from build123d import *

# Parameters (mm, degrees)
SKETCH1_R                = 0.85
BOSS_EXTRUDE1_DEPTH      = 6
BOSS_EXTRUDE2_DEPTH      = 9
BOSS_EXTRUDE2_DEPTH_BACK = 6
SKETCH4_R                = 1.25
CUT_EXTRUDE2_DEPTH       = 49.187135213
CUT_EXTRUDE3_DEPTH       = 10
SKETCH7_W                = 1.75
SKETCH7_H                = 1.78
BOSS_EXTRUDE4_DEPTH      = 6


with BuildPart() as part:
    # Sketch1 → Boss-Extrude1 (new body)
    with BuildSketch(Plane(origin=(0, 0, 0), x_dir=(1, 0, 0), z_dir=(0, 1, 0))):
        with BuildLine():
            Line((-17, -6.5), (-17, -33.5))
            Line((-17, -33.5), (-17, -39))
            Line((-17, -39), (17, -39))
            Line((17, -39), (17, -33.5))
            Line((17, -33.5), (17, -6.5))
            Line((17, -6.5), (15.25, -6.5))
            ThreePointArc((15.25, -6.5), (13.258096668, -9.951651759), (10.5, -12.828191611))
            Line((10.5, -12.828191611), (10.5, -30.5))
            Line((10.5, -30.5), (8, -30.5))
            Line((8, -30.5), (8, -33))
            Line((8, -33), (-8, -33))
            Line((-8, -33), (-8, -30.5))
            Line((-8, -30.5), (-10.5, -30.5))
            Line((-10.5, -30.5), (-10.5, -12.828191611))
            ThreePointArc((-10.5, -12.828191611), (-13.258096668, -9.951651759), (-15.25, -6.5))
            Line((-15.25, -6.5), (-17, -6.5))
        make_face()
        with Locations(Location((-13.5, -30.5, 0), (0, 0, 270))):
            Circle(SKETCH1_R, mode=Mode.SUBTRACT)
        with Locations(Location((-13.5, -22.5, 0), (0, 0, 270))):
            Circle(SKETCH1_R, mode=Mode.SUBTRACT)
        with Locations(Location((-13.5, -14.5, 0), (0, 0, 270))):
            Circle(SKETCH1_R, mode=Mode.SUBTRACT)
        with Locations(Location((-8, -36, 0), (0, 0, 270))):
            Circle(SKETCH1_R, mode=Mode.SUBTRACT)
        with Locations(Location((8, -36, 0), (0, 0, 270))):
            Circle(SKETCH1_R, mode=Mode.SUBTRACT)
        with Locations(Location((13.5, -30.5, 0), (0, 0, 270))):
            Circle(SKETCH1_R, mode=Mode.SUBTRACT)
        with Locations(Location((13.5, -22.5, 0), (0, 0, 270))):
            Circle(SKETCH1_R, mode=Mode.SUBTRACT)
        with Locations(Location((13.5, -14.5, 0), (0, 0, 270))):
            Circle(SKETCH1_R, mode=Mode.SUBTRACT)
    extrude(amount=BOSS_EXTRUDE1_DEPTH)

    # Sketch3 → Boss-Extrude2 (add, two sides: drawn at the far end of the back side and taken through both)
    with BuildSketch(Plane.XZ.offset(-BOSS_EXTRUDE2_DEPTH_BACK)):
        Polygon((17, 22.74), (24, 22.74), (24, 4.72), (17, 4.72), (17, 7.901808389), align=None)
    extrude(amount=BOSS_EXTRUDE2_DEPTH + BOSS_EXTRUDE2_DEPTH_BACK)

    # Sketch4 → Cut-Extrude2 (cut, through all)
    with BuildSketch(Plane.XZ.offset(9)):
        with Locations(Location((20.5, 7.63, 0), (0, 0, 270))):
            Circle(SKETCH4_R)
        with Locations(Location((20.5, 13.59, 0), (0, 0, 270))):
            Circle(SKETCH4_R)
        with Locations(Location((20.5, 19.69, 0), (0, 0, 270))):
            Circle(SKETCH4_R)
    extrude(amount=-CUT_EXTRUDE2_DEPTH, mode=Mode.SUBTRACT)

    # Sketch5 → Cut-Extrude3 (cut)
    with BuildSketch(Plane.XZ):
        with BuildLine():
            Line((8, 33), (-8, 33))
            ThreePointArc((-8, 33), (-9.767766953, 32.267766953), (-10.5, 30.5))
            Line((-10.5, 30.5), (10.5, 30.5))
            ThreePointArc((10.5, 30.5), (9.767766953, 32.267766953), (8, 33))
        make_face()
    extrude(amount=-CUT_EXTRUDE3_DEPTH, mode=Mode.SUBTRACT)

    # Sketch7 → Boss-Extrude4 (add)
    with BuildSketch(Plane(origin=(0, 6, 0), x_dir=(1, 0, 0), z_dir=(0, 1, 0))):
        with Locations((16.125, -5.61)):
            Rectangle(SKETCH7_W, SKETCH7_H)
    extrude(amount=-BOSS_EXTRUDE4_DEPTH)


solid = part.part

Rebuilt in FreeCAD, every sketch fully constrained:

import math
import FreeCAD as App
import Part
import Sketcher

V = App.Vector


def add_polygon(sketch, points):
    """Adds a closed chain of lines whose ends are joined by coincident constraints."""
    first, n = sketch.GeometryCount, len(points)
    for a, b in zip(points, points[1:] + points[:1]):
        sketch.addGeometry(Part.LineSegment(App.Vector(*a, 0), App.Vector(*b, 0)), False)
    for i in range(n):
        sketch.addConstraint(Sketcher.Constraint("Coincident", first + i, 2, first + (i + 1) % n, 1))

doc = App.newDocument("Part")
body = doc.addObject("PartDesign::Body", "Body")

sketch1 = body.newObject("Sketcher::SketchObject", "Sketch")
sketch1.AttachmentSupport = (doc.getObject("XZ_Plane"), [""])
sketch1.MapMode = "FlatFace"
sketch1.addGeometry(Part.LineSegment(V(-17, 6.5, 0), V(-17, 39, 0)), False)
sketch1.addGeometry(Part.LineSegment(V(-17, 39, 0), V(17, 39, 0)), False)
sketch1.addGeometry(Part.LineSegment(V(17, 39, 0), V(17, 6.5, 0)), False)
sketch1.addGeometry(Part.LineSegment(V(17, 6.5, 0), V(15.2, 6.5, 0)), False)
sketch1.addGeometry(Part.ArcOfCircle(Part.Circle(V(0, 0, 0), V(0, 0, 1), 16.6), math.radians(23), math.radians(51)), False)
sketch1.addGeometry(Part.LineSegment(V(10.5, 12.8, 0), V(10.5, 30.5, 0)), False)
sketch1.addGeometry(Part.LineSegment(V(10.5, 30.5, 0), V(8, 30.5, 0)), False)
sketch1.addGeometry(Part.LineSegment(V(8, 30.5, 0), V(8, 33, 0)), False)
sketch1.addGeometry(Part.LineSegment(V(8, 33, 0), V(-8, 33, 0)), False)
sketch1.addGeometry(Part.LineSegment(V(-8, 33, 0), V(-8, 30.5, 0)), False)
sketch1.addGeometry(Part.LineSegment(V(-8, 30.5, 0), V(-10.5, 30.5, 0)), False)
sketch1.addGeometry(Part.LineSegment(V(-10.5, 30.5, 0), V(-10.5, 12.8, 0)), False)
sketch1.addGeometry(Part.ArcOfCircle(Part.Circle(V(0, 0, 0), V(0, 0, 1), 16.6), math.radians(129), math.radians(157)), False)
sketch1.addGeometry(Part.LineSegment(V(-15.2, 6.5, 0), V(-17, 6.5, 0)), False)
sketch1.addGeometry(Part.Circle(V(-8, 36, 0), V(0, 0, 1), 0.8), False)
sketch1.addGeometry(Part.Circle(V(-13.5, 30.5, 0), V(0, 0, 1), 0.8), False)
sketch1.addGeometry(Part.Circle(V(8, 36, 0), V(0, 0, 1), 0.8), False)
sketch1.addGeometry(Part.Circle(V(13.5, 30.5, 0), V(0, 0, 1), 0.8), False)
sketch1.addGeometry(Part.Circle(V(-13.5, 22.5, 0), V(0, 0, 1), 0.8), False)
sketch1.addGeometry(Part.Circle(V(-13.5, 14.5, 0), V(0, 0, 1), 0.8), False)
sketch1.addGeometry(Part.Circle(V(13.5, 22.5, 0), V(0, 0, 1), 0.8), False)
sketch1.addGeometry(Part.Circle(V(13.5, 14.5, 0), V(0, 0, 1), 0.8), False)
sketch1.addConstraint(Sketcher.Constraint("Coincident", 0, 2, 1, 1))
sketch1.addConstraint(Sketcher.Constraint("Coincident", 1, 2, 2, 1))
sketch1.addConstraint(Sketcher.Constraint("Coincident", 2, 2, 3, 1))
sketch1.addConstraint(Sketcher.Constraint("Coincident", 3, 2, 4, 1))
sketch1.addConstraint(Sketcher.Constraint("Coincident", 4, 2, 5, 1))
sketch1.addConstraint(Sketcher.Constraint("Coincident", 5, 2, 6, 1))
sketch1.addConstraint(Sketcher.Constraint("Coincident", 6, 2, 7, 1))
sketch1.addConstraint(Sketcher.Constraint("Coincident", 7, 2, 8, 1))
sketch1.addConstraint(Sketcher.Constraint("Coincident", 8, 2, 9, 1))
sketch1.addConstraint(Sketcher.Constraint("Coincident", 9, 2, 10, 1))
sketch1.addConstraint(Sketcher.Constraint("Coincident", 10, 2, 11, 1))
sketch1.addConstraint(Sketcher.Constraint("Coincident", 11, 2, 12, 1))
sketch1.addConstraint(Sketcher.Constraint("Coincident", 12, 2, 13, 1))
sketch1.addConstraint(Sketcher.Constraint("Coincident", 13, 2, 0, 1))
sketch1.addConstraint(Sketcher.Constraint("Vertical", 0))
sketch1.addConstraint(Sketcher.Constraint("Horizontal", 1))
sketch1.addConstraint(Sketcher.Constraint("Vertical", 2))
sketch1.addConstraint(Sketcher.Constraint("Horizontal", 3))
sketch1.addConstraint(Sketcher.Constraint("Vertical", 5))
sketch1.addConstraint(Sketcher.Constraint("Horizontal", 6))
sketch1.addConstraint(Sketcher.Constraint("Vertical", 7))
sketch1.addConstraint(Sketcher.Constraint("Horizontal", 8))
sketch1.addConstraint(Sketcher.Constraint("Vertical", 9))
sketch1.addConstraint(Sketcher.Constraint("Horizontal", 10))
sketch1.addConstraint(Sketcher.Constraint("Vertical", 11))
sketch1.addConstraint(Sketcher.Constraint("Horizontal", 13))
sketch1.addConstraint(Sketcher.Constraint("Coincident", 4, 3, -1, 1))
sketch1.addConstraint(Sketcher.Constraint("Coincident", 12, 3, -1, 1))
sketch1.addConstraint(Sketcher.Constraint("Equal", 4, 12))
sketch1.addConstraint(Sketcher.Constraint("Equal", 14, 15))
sketch1.addConstraint(Sketcher.Constraint("Equal", 15, 16))
sketch1.addConstraint(Sketcher.Constraint("Equal", 16, 17))
sketch1.addConstraint(Sketcher.Constraint("Equal", 17, 18))
sketch1.addConstraint(Sketcher.Constraint("Equal", 18, 19))
sketch1.addConstraint(Sketcher.Constraint("Equal", 19, 20))
sketch1.addConstraint(Sketcher.Constraint("Equal", 20, 21))
sketch1.addConstraint(Sketcher.Constraint("Symmetric", 14, 3, 16, 3, -2))
sketch1.addConstraint(Sketcher.Constraint("Symmetric", 15, 3, 17, 3, -2))
sketch1.addConstraint(Sketcher.Constraint("Symmetric", 18, 3, 20, 3, -2))
sketch1.addConstraint(Sketcher.Constraint("Symmetric", 19, 3, 21, 3, -2))
sketch1.addConstraint(Sketcher.Constraint("Symmetric", 6, 2, 9, 2, -2))
sketch1.addConstraint(Sketcher.Constraint("Symmetric", 2, 2, 13, 2, -2))
sketch1.addConstraint(Sketcher.Constraint("Horizontal", 17, 3, 5, 2))
sketch1.addConstraint(Sketcher.Constraint("Horizontal", 4, 2, 11, 2))
sketch1.addConstraint(Sketcher.Constraint("Vertical", 15, 3, 18, 3))
sketch1.addConstraint(Sketcher.Constraint("Vertical", 18, 3, 19, 3))
sketch1.addConstraint(Sketcher.Constraint("Vertical", 16, 3, 6, 2))
sketch1.addConstraint(Sketcher.Constraint("Equal", 10, 7))
sketch1.addConstraint(Sketcher.Constraint("Diameter", 14, 1.7))
sketch1.addConstraint(Sketcher.Constraint("DistanceX", 1, 1, 1, 2, 34.0))
sketch1.addConstraint(Sketcher.Constraint("DistanceX", 8, 2, 8, 1, 16.0))
sketch1.addConstraint(Sketcher.Constraint("DistanceX", 6, 2, 6, 1, 2.5))
sketch1.addConstraint(Sketcher.Constraint("DistanceY", 0, 1, 0, 2, 32.5))
sketch1.addConstraint(Sketcher.Constraint("DistanceY", -1, 1, 14, 3, 36.0))
sketch1.addConstraint(Sketcher.Constraint("DistanceY", -1, 1, 0, 2, 39.0))
sketch1.addConstraint(Sketcher.Constraint("DistanceY", -1, 1, 7, 2, 33.0))
sketch1.addConstraint(Sketcher.Constraint("DistanceX", 15, 3, 17, 3, 27.0))
sketch1.addConstraint(Sketcher.Constraint("DistanceY", 18, 3, 15, 3, 8.0))
sketch1.addConstraint(Sketcher.Constraint("DistanceY", 19, 3, 18, 3, 8.0))
sketch1.addConstraint(Sketcher.Constraint("DistanceX", 3, 2, 3, 1, 1.75))
pad1 = body.newObject("PartDesign::Pad", "Pad")
pad1.Profile = sketch1
pad1.Length = 6
pad1.Reversed = True

sketch2 = body.newObject("Sketcher::SketchObject", "Sketch001")
sketch2.AttachmentSupport = (doc.getObject("XZ_Plane"), [""])
sketch2.MapMode = "FlatFace"
add_polygon(sketch2, [(24, 23), (17, 23), (17, 5), (24, 5)])
sketch2.addConstraint(Sketcher.Constraint("Horizontal", 0))
sketch2.addConstraint(Sketcher.Constraint("Vertical", 1))
sketch2.addConstraint(Sketcher.Constraint("Horizontal", 2))
sketch2.addConstraint(Sketcher.Constraint("Vertical", 3))
sketch2.addConstraint(Sketcher.Constraint("DistanceX", 0, 2, 0, 1, 7.0))
sketch2.addConstraint(Sketcher.Constraint("DistanceX", -1, 1, 0, 2, 17.0))
sketch2.addConstraint(Sketcher.Constraint("DistanceY", 1, 2, 1, 1, 18.02))
sketch2.addConstraint(Sketcher.Constraint("DistanceY", -1, 1, 0, 2, 22.74))
pad2 = body.newObject("PartDesign::Pad", "Pad001")
pad2.Profile = sketch2
pad2.Type = "TwoLengths"
pad2.Length = 9
pad2.Length2 = 6

sketch3 = body.newObject("Sketcher::SketchObject", "Sketch002")
sketch3.AttachmentSupport = (doc.getObject("XZ_Plane"), [""])
sketch3.MapMode = "FlatFace"
sketch3.AttachmentOffset = App.Placement(V(0, 0, 9), App.Rotation())
sketch3.addGeometry(Part.Circle(V(20.5, 7.6, 0), V(0, 0, 1), 1.2), False)
sketch3.addGeometry(Part.Circle(V(20.5, 13.6, 0), V(0, 0, 1), 1.2), False)
sketch3.addGeometry(Part.Circle(V(20.5, 19.7, 0), V(0, 0, 1), 1.2), False)
sketch3.addConstraint(Sketcher.Constraint("Equal", 0, 1))
sketch3.addConstraint(Sketcher.Constraint("Equal", 1, 2))
sketch3.addConstraint(Sketcher.Constraint("Vertical", 0, 3, 1, 3))
sketch3.addConstraint(Sketcher.Constraint("Vertical", 1, 3, 2, 3))
sketch3.addConstraint(Sketcher.Constraint("Diameter", 0, 2.5))
sketch3.addConstraint(Sketcher.Constraint("DistanceX", -1, 1, 0, 3, 20.5))
sketch3.addConstraint(Sketcher.Constraint("DistanceY", 1, 3, 2, 3, 6.1))
sketch3.addConstraint(Sketcher.Constraint("DistanceY", -1, 1, 0, 3, 7.63))
sketch3.addConstraint(Sketcher.Constraint("DistanceY", -1, 1, 1, 3, 13.59))
pocket1 = body.newObject("PartDesign::Pocket", "Pocket")
pocket1.Profile = sketch3
pocket1.Type = "ThroughAll"

sketch4 = body.newObject("Sketcher::SketchObject", "Sketch003")
sketch4.AttachmentSupport = (doc.getObject("XZ_Plane"), [""])
sketch4.MapMode = "FlatFace"
sketch4.addGeometry(Part.LineSegment(V(8, 33, 0), V(-8, 33, 0)), False)
sketch4.addGeometry(Part.ArcOfCircle(Part.Circle(V(-8, 30.5, 0), V(0, 0, 1), 2.5), math.radians(90), math.radians(180)), False)
sketch4.addGeometry(Part.LineSegment(V(-10.5, 30.5, 0), V(10.5, 30.5, 0)), False)
sketch4.addGeometry(Part.ArcOfCircle(Part.Circle(V(8, 30.5, 0), V(0, 0, 1), 2.5), math.radians(0), math.radians(90)), False)
sketch4.addConstraint(Sketcher.Constraint("Tangent", 0, 2, 1, 1))
sketch4.addConstraint(Sketcher.Constraint("Coincident", 1, 2, 2, 1))
sketch4.addConstraint(Sketcher.Constraint("Coincident", 2, 2, 3, 1))
sketch4.addConstraint(Sketcher.Constraint("Tangent", 3, 2, 0, 1))
sketch4.addConstraint(Sketcher.Constraint("Horizontal", 0))
sketch4.addConstraint(Sketcher.Constraint("Horizontal", 2))
sketch4.addConstraint(Sketcher.Constraint("Equal", 1, 3))
sketch4.addConstraint(Sketcher.Constraint("Horizontal", 3, 3, 1, 2))
sketch4.addConstraint(Sketcher.Constraint("Radius", 1, 2.5))
sketch4.addConstraint(Sketcher.Constraint("DistanceX", 0, 2, 0, 1, 16.0))
sketch4.addConstraint(Sketcher.Constraint("DistanceX", 1, 3, -1, 1, 8.0))
sketch4.addConstraint(Sketcher.Constraint("DistanceY", -1, 1, 0, 2, 33.0))
pocket2 = body.newObject("PartDesign::Pocket", "Pocket001")
pocket2.Profile = sketch4
pocket2.Length = 10

sketch5 = body.newObject("Sketcher::SketchObject", "Sketch004")
sketch5.AttachmentSupport = (doc.getObject("XZ_Plane"), [""])
sketch5.MapMode = "FlatFace"
sketch5.AttachmentOffset = App.Placement(V(0, 0, -6), App.Rotation())
add_polygon(sketch5, [(15.2, 4.7), (15.2, 6.5), (17, 6.5), (17, 4.7)])
sketch5.addConstraint(Sketcher.Constraint("Vertical", 0))
sketch5.addConstraint(Sketcher.Constraint("Horizontal", 1))
sketch5.addConstraint(Sketcher.Constraint("Vertical", 2))
sketch5.addConstraint(Sketcher.Constraint("Horizontal", 3))
sketch5.addConstraint(Sketcher.Constraint("DistanceX", -1, 1, 1, 2, 17.0))
sketch5.addConstraint(Sketcher.Constraint("DistanceX", 1, 1, 1, 2, 1.75))
sketch5.addConstraint(Sketcher.Constraint("DistanceY", 0, 1, 0, 2, 1.78))
sketch5.addConstraint(Sketcher.Constraint("DistanceY", -1, 1, 0, 2, 6.5))
pad3 = body.newObject("PartDesign::Pad", "Pad002")
pad3.Profile = sketch5
pad3.Length = 6

doc.recompute()
